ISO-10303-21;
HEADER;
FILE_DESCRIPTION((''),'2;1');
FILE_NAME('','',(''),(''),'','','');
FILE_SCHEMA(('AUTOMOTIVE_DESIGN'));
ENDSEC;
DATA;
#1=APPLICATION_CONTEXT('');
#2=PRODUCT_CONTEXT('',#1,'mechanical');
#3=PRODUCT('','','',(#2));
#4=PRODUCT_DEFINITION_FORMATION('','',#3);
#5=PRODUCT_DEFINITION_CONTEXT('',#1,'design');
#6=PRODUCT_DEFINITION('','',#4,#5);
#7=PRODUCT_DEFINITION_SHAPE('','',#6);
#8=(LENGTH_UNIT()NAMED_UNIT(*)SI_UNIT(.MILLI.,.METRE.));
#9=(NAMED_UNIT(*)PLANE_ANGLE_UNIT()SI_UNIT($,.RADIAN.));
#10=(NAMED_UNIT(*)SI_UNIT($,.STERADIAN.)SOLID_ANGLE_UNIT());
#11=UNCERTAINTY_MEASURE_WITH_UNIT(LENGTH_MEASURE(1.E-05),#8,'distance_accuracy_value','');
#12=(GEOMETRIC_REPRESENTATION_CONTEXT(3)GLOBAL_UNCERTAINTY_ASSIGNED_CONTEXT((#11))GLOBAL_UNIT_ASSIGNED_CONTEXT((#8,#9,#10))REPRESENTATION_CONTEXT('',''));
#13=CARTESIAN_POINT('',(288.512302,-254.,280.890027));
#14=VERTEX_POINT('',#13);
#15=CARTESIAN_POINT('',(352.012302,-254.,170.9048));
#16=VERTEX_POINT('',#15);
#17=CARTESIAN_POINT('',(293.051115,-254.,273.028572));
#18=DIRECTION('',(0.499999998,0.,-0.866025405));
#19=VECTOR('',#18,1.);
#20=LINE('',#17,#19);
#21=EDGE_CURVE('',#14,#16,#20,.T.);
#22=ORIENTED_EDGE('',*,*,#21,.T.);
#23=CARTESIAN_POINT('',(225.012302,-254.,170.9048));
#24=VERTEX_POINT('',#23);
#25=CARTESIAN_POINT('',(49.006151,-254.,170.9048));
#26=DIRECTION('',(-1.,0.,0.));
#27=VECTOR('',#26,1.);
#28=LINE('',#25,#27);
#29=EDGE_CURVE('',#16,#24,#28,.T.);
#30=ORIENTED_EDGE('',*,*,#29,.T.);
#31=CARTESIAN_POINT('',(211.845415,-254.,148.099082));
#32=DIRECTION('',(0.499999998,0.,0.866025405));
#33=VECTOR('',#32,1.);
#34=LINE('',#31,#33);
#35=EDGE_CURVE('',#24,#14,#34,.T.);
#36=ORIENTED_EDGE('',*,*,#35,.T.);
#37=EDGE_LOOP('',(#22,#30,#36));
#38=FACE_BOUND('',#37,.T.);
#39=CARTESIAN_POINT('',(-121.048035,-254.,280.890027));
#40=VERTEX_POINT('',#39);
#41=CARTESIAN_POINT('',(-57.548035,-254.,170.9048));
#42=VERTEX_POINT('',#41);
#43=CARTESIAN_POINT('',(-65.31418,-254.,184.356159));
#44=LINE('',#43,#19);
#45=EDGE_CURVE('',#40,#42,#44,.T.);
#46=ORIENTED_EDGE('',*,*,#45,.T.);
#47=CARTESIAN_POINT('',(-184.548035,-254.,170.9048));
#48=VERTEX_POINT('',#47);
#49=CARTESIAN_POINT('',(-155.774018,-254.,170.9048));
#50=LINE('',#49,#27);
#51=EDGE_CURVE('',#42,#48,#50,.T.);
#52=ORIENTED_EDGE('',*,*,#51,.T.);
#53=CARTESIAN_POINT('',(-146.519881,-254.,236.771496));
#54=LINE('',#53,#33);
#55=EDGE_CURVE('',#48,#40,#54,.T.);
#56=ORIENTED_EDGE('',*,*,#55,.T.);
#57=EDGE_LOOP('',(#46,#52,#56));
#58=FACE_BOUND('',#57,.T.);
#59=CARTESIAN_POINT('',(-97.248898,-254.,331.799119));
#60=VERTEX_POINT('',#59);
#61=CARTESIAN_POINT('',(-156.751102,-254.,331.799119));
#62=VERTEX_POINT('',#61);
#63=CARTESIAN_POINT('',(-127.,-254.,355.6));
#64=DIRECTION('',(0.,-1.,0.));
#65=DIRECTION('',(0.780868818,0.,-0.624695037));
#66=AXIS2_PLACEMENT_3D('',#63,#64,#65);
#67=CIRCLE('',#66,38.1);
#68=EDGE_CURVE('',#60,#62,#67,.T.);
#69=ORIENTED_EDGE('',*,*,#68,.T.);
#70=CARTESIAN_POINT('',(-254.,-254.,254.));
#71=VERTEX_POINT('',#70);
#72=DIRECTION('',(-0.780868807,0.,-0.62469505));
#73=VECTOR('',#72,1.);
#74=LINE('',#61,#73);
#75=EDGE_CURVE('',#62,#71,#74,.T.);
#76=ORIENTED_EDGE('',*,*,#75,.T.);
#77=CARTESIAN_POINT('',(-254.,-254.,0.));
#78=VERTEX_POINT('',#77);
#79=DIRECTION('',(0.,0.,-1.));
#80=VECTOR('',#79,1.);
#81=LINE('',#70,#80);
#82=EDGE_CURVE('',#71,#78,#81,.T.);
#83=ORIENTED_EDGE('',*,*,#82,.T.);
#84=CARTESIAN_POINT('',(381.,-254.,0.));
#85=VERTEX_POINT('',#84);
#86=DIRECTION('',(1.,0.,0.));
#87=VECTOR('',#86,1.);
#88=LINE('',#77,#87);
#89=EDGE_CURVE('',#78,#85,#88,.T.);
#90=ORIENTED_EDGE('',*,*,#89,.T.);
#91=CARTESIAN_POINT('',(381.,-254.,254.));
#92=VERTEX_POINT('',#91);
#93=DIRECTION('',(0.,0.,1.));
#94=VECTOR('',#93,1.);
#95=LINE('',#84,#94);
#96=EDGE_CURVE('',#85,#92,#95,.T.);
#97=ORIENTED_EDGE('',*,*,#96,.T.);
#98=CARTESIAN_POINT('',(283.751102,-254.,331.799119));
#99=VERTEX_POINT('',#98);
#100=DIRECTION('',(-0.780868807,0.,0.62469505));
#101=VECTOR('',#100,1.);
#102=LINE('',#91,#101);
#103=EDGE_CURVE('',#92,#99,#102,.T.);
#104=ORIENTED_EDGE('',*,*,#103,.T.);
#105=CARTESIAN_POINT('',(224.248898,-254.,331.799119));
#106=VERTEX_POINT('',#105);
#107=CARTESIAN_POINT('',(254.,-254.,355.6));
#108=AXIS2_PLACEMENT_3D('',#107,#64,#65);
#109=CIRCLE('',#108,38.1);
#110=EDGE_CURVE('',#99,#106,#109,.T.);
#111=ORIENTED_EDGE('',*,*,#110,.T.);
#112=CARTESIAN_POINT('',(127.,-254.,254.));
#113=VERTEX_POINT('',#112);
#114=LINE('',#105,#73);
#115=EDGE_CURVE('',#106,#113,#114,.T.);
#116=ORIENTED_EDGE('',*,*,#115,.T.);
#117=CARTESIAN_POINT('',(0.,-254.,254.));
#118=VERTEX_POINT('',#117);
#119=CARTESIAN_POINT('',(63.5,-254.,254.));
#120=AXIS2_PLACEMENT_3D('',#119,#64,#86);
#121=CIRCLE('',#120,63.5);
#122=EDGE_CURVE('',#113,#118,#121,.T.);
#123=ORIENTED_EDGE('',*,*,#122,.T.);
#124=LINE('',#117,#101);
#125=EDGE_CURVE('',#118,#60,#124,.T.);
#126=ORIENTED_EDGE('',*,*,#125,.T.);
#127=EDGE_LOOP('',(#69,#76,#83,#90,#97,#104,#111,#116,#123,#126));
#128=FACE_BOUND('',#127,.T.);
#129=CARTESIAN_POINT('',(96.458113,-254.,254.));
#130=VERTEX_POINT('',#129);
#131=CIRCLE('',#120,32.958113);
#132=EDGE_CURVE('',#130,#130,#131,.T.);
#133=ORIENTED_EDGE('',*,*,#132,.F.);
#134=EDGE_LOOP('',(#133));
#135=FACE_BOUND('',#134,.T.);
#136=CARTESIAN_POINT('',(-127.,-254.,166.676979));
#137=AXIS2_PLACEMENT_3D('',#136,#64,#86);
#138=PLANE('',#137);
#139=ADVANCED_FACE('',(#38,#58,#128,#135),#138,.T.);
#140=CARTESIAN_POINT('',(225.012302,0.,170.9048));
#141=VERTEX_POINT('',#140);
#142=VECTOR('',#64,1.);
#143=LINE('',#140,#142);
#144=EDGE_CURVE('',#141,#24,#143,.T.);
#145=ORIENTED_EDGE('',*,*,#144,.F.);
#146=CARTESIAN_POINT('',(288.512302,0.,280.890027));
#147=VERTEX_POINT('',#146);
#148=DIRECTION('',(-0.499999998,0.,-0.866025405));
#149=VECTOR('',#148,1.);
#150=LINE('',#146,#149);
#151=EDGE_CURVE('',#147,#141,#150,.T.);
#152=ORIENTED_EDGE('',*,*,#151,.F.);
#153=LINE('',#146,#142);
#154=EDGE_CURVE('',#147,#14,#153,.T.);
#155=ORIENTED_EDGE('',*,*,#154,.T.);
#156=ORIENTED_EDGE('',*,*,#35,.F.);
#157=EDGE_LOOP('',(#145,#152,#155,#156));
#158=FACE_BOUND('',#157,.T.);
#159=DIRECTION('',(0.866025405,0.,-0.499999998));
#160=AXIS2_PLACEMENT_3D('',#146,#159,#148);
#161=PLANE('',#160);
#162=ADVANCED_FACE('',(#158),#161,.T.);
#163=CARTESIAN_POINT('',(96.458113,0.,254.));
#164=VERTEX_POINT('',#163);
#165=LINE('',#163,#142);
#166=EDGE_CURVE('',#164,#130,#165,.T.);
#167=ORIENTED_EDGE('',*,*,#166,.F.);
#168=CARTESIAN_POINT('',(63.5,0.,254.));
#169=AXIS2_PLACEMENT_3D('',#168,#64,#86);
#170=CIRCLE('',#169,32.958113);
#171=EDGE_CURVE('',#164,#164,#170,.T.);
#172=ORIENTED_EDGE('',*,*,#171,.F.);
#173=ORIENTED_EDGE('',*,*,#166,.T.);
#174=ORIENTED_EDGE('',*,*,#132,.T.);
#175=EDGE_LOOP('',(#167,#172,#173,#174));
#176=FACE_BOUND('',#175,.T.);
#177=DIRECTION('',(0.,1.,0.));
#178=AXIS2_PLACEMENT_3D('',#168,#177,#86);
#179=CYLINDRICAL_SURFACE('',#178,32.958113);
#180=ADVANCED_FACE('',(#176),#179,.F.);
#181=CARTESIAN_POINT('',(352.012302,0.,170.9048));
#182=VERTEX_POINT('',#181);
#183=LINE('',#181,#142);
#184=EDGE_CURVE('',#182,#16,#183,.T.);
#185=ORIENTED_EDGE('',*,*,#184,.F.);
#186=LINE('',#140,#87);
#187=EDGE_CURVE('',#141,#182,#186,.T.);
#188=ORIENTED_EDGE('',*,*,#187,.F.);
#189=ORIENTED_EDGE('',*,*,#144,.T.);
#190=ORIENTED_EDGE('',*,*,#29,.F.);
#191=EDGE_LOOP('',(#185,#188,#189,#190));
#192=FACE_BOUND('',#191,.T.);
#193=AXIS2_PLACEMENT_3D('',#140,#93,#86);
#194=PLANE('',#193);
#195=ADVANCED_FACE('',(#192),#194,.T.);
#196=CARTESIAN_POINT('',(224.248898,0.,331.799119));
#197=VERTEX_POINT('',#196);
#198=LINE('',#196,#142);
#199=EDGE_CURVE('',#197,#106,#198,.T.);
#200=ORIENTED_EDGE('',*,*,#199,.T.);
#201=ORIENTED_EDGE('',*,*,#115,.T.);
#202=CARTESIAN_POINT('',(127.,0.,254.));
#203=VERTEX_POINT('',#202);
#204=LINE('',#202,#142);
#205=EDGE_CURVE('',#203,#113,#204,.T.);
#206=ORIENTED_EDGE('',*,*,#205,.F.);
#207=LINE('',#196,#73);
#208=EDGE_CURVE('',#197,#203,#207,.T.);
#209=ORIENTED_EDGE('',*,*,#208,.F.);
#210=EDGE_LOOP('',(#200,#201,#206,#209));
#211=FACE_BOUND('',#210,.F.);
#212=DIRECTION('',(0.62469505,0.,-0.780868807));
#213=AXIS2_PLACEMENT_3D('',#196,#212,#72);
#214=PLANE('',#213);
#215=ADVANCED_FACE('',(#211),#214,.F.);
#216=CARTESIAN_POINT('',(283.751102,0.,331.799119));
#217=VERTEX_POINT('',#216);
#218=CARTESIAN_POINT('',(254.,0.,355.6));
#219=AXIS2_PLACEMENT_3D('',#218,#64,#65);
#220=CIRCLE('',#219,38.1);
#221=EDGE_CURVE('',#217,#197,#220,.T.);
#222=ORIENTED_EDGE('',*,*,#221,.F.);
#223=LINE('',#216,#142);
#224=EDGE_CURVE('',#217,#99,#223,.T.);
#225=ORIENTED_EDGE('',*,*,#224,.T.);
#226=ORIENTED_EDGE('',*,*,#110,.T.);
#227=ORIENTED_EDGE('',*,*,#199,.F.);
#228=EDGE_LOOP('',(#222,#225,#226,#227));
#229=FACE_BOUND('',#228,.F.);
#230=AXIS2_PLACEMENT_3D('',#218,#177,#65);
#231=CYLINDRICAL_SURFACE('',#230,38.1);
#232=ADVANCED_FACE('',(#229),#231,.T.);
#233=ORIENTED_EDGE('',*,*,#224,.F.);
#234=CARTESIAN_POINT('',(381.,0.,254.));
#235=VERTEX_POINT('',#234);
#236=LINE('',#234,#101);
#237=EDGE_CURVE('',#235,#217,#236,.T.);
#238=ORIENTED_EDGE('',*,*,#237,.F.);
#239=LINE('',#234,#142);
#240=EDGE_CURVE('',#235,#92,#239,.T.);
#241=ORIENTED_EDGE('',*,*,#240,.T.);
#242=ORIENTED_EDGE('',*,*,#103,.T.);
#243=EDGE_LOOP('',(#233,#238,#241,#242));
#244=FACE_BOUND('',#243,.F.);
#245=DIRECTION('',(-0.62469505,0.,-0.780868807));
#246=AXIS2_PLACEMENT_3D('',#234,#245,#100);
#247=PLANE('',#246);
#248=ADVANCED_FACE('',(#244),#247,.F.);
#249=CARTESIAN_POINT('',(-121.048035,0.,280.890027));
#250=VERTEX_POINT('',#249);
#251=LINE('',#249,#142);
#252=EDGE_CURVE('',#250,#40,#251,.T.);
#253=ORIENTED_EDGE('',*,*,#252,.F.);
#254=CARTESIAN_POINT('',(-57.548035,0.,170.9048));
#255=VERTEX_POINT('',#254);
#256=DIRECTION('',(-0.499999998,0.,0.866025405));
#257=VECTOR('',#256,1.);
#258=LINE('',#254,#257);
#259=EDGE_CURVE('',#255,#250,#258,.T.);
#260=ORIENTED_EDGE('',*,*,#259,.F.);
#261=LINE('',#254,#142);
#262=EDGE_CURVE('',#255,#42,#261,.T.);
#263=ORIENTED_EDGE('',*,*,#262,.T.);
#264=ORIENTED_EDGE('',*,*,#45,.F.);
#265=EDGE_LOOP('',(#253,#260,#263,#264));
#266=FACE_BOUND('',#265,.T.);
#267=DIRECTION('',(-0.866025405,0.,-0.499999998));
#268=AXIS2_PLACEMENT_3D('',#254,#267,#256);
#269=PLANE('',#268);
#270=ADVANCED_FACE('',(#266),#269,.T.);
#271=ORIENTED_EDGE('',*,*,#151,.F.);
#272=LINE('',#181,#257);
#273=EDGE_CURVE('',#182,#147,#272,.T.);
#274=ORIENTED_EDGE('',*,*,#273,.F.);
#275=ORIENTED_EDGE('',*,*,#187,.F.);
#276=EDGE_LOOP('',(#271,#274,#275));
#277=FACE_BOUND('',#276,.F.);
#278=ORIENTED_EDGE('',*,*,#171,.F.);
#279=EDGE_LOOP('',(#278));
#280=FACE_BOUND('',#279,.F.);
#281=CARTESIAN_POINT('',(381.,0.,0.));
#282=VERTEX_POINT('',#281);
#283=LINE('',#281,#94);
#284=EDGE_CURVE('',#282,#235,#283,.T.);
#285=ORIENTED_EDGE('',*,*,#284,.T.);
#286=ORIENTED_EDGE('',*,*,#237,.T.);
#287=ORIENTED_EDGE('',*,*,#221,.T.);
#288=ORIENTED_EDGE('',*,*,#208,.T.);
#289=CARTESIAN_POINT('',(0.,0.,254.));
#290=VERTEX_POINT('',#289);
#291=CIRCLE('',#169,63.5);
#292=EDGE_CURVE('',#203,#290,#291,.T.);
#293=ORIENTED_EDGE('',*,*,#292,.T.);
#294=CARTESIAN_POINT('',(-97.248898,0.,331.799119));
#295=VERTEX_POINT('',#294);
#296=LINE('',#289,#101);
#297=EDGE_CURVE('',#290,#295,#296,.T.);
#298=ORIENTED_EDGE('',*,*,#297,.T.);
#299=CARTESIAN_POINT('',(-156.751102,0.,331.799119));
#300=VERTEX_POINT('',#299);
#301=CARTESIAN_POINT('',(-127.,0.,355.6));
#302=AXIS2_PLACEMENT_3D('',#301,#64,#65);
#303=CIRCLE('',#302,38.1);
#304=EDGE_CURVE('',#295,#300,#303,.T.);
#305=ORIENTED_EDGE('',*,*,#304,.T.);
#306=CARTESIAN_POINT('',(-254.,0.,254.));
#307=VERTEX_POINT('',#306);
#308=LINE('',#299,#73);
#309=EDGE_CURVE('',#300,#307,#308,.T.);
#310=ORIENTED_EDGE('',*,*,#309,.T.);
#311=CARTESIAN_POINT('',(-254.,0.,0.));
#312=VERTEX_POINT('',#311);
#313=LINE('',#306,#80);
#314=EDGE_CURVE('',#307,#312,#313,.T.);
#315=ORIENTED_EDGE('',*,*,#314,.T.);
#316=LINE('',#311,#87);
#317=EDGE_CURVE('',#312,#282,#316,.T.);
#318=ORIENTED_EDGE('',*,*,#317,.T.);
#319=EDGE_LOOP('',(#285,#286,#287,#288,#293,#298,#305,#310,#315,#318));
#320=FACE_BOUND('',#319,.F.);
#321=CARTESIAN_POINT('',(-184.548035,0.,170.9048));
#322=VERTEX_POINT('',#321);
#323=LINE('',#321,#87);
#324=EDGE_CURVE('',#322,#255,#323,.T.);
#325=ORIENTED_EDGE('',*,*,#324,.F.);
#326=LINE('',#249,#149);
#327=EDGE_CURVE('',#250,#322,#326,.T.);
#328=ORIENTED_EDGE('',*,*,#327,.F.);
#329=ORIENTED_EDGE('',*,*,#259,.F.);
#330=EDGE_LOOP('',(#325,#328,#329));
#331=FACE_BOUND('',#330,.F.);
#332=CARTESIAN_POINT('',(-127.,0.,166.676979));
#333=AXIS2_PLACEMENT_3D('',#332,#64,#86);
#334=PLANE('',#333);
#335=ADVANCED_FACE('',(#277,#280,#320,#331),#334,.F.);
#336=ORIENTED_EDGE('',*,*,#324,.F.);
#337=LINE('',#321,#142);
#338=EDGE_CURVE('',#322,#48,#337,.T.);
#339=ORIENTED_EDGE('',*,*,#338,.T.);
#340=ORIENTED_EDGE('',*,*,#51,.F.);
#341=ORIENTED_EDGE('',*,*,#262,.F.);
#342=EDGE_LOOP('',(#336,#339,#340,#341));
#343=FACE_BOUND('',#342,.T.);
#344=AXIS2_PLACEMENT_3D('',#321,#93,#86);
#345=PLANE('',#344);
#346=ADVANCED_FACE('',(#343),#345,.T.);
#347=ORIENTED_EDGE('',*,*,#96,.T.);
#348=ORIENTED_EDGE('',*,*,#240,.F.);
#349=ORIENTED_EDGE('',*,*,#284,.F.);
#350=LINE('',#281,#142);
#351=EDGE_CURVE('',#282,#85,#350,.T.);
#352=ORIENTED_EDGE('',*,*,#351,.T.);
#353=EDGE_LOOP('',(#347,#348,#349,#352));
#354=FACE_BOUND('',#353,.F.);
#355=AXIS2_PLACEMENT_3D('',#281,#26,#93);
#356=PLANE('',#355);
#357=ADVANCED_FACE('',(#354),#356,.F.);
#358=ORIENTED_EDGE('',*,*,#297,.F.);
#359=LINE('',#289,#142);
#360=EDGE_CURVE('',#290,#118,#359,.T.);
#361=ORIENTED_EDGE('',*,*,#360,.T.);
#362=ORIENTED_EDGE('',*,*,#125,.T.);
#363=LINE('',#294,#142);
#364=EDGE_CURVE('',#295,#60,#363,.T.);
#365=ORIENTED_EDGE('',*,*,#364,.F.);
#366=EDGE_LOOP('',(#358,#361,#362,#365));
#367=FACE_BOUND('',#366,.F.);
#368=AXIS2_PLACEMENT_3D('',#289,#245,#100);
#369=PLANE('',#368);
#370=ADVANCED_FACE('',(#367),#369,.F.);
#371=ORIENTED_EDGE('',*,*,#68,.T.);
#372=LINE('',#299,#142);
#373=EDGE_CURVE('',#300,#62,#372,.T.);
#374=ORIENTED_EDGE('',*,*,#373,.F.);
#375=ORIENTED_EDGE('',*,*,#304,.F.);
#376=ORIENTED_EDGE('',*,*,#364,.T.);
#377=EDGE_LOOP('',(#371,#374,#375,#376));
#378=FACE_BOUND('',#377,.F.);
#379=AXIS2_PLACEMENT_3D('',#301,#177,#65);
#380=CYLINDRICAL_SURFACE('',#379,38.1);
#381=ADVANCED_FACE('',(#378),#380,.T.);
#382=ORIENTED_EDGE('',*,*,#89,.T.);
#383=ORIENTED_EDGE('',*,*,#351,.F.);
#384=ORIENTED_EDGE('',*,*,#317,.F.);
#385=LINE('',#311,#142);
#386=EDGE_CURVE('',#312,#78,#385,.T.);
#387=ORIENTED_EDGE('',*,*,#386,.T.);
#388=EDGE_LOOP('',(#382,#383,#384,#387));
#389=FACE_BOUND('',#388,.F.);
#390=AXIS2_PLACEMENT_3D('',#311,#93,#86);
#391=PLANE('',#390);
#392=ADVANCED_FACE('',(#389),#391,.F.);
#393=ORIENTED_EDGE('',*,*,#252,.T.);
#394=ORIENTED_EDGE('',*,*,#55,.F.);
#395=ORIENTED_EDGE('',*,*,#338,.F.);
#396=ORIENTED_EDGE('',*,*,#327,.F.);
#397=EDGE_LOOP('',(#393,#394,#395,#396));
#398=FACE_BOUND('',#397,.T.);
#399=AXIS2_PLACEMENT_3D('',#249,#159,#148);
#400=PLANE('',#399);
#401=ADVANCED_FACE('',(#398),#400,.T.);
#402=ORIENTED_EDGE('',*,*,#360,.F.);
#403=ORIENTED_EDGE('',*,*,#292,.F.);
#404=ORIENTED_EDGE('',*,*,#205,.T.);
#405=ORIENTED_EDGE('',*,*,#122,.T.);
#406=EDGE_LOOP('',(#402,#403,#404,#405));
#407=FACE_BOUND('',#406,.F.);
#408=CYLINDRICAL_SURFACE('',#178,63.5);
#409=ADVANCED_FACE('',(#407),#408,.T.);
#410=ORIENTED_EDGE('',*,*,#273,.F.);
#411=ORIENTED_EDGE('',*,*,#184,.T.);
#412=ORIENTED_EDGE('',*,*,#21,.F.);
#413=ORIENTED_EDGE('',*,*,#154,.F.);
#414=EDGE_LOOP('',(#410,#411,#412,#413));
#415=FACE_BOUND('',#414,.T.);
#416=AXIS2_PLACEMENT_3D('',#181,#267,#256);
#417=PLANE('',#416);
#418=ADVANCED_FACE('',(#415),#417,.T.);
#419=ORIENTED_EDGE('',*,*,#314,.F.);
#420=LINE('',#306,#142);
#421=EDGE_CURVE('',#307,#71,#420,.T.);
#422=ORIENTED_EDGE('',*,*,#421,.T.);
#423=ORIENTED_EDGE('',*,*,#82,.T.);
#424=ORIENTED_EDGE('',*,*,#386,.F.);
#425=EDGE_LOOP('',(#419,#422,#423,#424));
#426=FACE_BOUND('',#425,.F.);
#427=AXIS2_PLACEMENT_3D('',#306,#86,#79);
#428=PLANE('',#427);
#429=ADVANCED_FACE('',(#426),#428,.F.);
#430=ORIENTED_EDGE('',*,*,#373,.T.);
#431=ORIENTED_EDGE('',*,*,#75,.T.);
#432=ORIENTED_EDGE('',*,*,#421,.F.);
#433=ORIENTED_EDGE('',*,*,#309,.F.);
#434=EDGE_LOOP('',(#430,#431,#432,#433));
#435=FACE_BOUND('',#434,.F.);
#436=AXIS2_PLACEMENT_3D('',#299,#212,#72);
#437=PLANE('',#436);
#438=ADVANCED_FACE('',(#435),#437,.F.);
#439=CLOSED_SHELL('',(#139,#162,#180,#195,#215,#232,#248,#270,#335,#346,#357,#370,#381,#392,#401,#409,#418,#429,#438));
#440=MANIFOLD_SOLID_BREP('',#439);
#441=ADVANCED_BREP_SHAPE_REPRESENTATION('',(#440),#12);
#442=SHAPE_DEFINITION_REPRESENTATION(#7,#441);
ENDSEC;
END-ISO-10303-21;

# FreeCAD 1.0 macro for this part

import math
import FreeCAD as App
import Part
import Sketcher

V = App.Vector
Q = App.Units.Quantity

doc = App.newDocument("Part")
body = doc.addObject("PartDesign::Body", "Body")

sketch1 = doc.addObject("Sketcher::SketchObject", "Sketch")
body.addObject(sketch1)
sketch1.AttachmentSupport = (doc.XZ_Plane, [""])
sketch1.MapMode = "FlatFace"
sketch1.addGeometry([
    Part.LineSegment(V(-254, 0, 0), V(381, 0, 0)),
    Part.LineSegment(V(381, 0, 0), V(381, 254, 0)),
    Part.LineSegment(V(381, 254, 0), V(284, 332, 0)),
    Part.ArcOfCircle(Part.Circle(V(254, 356, 0), V(0, 0, 1), 38), math.radians(-39), math.radians(219)),
    Part.LineSegment(V(224, 332, 0), V(127, 254, 0)),
    Part.ArcOfCircle(Part.Circle(V(64, 254, 0), V(0, 0, 1), 64), math.radians(0), math.radians(180)),
    Part.LineSegment(V(0, 254, 0), V(-97, 332, 0)),
    Part.ArcOfCircle(Part.Circle(V(-127, 356, 0), V(0, 0, 1), 38), math.radians(-39), math.radians(219)),
    Part.LineSegment(V(-157, 332, 0), V(-254, 254, 0)),
    Part.LineSegment(V(-254, 254, 0), V(-254, 0, 0)),
    Part.Circle(V(64, 254, 0), V(0, 0, 1), 33),
], False)
sketch1.addConstraint([
    Sketcher.Constraint("Coincident", 0, 2, 1, 1),
    Sketcher.Constraint("Coincident", 1, 2, 2, 1),
    Sketcher.Constraint("Coincident", 2, 2, 3, 1),
    Sketcher.Constraint("Coincident", 3, 2, 4, 1),
    Sketcher.Constraint("Coincident", 4, 2, 5, 1),
    Sketcher.Constraint("Coincident", 5, 2, 6, 1),
    Sketcher.Constraint("Coincident", 6, 2, 7, 1),
    Sketcher.Constraint("Coincident", 7, 2, 8, 1),
    Sketcher.Constraint("Coincident", 8, 2, 9, 1),
    Sketcher.Constraint("Coincident", 9, 2, 0, 1),
    Sketcher.Constraint("Horizontal", 0),
    Sketcher.Constraint("Vertical", 1),
    Sketcher.Constraint("Vertical", 9),
    Sketcher.Constraint("Coincident", 10, 3, 5, 3),
    Sketcher.Constraint("Equal", 3, 7),
    Sketcher.Constraint("PointOnObject", 0, 2, -1),
    Sketcher.Constraint("PointOnObject", 5, 2, -2),
    Sketcher.Constraint("Parallel", 2, 6),
    Sketcher.Constraint("Parallel", 4, 8),
    Sketcher.Constraint("Horizontal", 3, 3, 7, 3),
    Sketcher.Constraint("Horizontal", 10, 3, 1, 2),
    Sketcher.Constraint("Horizontal", 2, 2, 3, 2),
    Sketcher.Constraint("Horizontal", 1, 2, 4, 2),
    Sketcher.Constraint("Horizontal", 4, 2, 5, 2),
    Sketcher.Constraint("Horizontal", 3, 2, 6, 2),
    Sketcher.Constraint("Horizontal", 6, 2, 7, 2),
    Sketcher.Constraint("Horizontal", 5, 2, 8, 2),
    Sketcher.Constraint("Equal", 2, 4),
    Sketcher.Constraint("Radius", 3, Q("1.5 in")),
    Sketcher.Constraint("Radius", 5, Q("2.5 in")),
    Sketcher.Constraint("DistanceX", 0, 1, 0, 2, Q("25 in")),
    Sketcher.Constraint("DistanceY", 1, 1, 1, 2, Q("10 in")),
    Sketcher.Constraint("DistanceY", -1, 1, 3, 3, Q("14 in")),
    Sketcher.Constraint("Diameter", 10, Q("65.916226 mm")),
    Sketcher.Constraint("DistanceX", -1, 1, 2, 2, Q("283.751102 mm")),
])
pad1 = doc.addObject("PartDesign::Pad", "Pad")
body.addObject(pad1)
pad1.Profile = sketch1
pad1.Length = Q("10 in")

sketch2 = doc.addObject("Sketcher::SketchObject", "Sketch001")
body.addObject(sketch2)
sketch2.AttachmentSupport = (doc.XZ_Plane, [""])
sketch2.MapMode = "FlatFace"
sketch2.addGeometry([
    Part.LineSegment(V(289, 281, 0), V(225, 171, 0)),
    Part.LineSegment(V(225, 171, 0), V(352, 171, 0)),
    Part.LineSegment(V(352, 171, 0), V(289, 281, 0)),
    Part.LineSegment(V(-58, 171, 0), V(-121, 281, 0)),
    Part.LineSegment(V(-121, 281, 0), V(-185, 171, 0)),
    Part.LineSegment(V(-185, 171, 0), V(-58, 171, 0)),
], False)
sketch2.addConstraint([
    Sketcher.Constraint("Coincident", 0, 2, 1, 1),
    Sketcher.Constraint("Coincident", 1, 2, 2, 1),
    Sketcher.Constraint("Coincident", 2, 2, 0, 1),
    Sketcher.Constraint("Coincident", 3, 2, 4, 1),
    Sketcher.Constraint("Coincident", 4, 2, 5, 1),
    Sketcher.Constraint("Coincident", 5, 2, 3, 1),
    Sketcher.Constraint("Horizontal", 1),
    Sketcher.Constraint("Horizontal", 5),
    Sketcher.Constraint("Parallel", 2, 3),
    Sketcher.Constraint("Parallel", 0, 4),
    Sketcher.Constraint("Horizontal", 2, 2, 3, 2),
    Sketcher.Constraint("Horizontal", 1, 2, 4, 2),
    Sketcher.Constraint("Equal", 0, 2),
    Sketcher.Constraint("DistanceX", 1, 1, 1, 2, Q("5 in")),
    Sketcher.Constraint("Distance", 0, Q("5 in")),
    Sketcher.Constraint("DistanceX", -1, 1, 0, 2, Q("225.012302 mm")),
    Sketcher.Constraint("DistanceY", -1, 1, 0, 2, Q("170.9048 mm")),
    Sketcher.Constraint("DistanceX", 3, 2, -1, 1, Q("121.048035 mm")),
])
pocket1 = doc.addObject("PartDesign::Pocket", "Pocket")
body.addObject(pocket1)
pocket1.Profile = sketch2
pocket1.Type = "ThroughAll"
pocket1.Reversed = True

doc.recompute()
